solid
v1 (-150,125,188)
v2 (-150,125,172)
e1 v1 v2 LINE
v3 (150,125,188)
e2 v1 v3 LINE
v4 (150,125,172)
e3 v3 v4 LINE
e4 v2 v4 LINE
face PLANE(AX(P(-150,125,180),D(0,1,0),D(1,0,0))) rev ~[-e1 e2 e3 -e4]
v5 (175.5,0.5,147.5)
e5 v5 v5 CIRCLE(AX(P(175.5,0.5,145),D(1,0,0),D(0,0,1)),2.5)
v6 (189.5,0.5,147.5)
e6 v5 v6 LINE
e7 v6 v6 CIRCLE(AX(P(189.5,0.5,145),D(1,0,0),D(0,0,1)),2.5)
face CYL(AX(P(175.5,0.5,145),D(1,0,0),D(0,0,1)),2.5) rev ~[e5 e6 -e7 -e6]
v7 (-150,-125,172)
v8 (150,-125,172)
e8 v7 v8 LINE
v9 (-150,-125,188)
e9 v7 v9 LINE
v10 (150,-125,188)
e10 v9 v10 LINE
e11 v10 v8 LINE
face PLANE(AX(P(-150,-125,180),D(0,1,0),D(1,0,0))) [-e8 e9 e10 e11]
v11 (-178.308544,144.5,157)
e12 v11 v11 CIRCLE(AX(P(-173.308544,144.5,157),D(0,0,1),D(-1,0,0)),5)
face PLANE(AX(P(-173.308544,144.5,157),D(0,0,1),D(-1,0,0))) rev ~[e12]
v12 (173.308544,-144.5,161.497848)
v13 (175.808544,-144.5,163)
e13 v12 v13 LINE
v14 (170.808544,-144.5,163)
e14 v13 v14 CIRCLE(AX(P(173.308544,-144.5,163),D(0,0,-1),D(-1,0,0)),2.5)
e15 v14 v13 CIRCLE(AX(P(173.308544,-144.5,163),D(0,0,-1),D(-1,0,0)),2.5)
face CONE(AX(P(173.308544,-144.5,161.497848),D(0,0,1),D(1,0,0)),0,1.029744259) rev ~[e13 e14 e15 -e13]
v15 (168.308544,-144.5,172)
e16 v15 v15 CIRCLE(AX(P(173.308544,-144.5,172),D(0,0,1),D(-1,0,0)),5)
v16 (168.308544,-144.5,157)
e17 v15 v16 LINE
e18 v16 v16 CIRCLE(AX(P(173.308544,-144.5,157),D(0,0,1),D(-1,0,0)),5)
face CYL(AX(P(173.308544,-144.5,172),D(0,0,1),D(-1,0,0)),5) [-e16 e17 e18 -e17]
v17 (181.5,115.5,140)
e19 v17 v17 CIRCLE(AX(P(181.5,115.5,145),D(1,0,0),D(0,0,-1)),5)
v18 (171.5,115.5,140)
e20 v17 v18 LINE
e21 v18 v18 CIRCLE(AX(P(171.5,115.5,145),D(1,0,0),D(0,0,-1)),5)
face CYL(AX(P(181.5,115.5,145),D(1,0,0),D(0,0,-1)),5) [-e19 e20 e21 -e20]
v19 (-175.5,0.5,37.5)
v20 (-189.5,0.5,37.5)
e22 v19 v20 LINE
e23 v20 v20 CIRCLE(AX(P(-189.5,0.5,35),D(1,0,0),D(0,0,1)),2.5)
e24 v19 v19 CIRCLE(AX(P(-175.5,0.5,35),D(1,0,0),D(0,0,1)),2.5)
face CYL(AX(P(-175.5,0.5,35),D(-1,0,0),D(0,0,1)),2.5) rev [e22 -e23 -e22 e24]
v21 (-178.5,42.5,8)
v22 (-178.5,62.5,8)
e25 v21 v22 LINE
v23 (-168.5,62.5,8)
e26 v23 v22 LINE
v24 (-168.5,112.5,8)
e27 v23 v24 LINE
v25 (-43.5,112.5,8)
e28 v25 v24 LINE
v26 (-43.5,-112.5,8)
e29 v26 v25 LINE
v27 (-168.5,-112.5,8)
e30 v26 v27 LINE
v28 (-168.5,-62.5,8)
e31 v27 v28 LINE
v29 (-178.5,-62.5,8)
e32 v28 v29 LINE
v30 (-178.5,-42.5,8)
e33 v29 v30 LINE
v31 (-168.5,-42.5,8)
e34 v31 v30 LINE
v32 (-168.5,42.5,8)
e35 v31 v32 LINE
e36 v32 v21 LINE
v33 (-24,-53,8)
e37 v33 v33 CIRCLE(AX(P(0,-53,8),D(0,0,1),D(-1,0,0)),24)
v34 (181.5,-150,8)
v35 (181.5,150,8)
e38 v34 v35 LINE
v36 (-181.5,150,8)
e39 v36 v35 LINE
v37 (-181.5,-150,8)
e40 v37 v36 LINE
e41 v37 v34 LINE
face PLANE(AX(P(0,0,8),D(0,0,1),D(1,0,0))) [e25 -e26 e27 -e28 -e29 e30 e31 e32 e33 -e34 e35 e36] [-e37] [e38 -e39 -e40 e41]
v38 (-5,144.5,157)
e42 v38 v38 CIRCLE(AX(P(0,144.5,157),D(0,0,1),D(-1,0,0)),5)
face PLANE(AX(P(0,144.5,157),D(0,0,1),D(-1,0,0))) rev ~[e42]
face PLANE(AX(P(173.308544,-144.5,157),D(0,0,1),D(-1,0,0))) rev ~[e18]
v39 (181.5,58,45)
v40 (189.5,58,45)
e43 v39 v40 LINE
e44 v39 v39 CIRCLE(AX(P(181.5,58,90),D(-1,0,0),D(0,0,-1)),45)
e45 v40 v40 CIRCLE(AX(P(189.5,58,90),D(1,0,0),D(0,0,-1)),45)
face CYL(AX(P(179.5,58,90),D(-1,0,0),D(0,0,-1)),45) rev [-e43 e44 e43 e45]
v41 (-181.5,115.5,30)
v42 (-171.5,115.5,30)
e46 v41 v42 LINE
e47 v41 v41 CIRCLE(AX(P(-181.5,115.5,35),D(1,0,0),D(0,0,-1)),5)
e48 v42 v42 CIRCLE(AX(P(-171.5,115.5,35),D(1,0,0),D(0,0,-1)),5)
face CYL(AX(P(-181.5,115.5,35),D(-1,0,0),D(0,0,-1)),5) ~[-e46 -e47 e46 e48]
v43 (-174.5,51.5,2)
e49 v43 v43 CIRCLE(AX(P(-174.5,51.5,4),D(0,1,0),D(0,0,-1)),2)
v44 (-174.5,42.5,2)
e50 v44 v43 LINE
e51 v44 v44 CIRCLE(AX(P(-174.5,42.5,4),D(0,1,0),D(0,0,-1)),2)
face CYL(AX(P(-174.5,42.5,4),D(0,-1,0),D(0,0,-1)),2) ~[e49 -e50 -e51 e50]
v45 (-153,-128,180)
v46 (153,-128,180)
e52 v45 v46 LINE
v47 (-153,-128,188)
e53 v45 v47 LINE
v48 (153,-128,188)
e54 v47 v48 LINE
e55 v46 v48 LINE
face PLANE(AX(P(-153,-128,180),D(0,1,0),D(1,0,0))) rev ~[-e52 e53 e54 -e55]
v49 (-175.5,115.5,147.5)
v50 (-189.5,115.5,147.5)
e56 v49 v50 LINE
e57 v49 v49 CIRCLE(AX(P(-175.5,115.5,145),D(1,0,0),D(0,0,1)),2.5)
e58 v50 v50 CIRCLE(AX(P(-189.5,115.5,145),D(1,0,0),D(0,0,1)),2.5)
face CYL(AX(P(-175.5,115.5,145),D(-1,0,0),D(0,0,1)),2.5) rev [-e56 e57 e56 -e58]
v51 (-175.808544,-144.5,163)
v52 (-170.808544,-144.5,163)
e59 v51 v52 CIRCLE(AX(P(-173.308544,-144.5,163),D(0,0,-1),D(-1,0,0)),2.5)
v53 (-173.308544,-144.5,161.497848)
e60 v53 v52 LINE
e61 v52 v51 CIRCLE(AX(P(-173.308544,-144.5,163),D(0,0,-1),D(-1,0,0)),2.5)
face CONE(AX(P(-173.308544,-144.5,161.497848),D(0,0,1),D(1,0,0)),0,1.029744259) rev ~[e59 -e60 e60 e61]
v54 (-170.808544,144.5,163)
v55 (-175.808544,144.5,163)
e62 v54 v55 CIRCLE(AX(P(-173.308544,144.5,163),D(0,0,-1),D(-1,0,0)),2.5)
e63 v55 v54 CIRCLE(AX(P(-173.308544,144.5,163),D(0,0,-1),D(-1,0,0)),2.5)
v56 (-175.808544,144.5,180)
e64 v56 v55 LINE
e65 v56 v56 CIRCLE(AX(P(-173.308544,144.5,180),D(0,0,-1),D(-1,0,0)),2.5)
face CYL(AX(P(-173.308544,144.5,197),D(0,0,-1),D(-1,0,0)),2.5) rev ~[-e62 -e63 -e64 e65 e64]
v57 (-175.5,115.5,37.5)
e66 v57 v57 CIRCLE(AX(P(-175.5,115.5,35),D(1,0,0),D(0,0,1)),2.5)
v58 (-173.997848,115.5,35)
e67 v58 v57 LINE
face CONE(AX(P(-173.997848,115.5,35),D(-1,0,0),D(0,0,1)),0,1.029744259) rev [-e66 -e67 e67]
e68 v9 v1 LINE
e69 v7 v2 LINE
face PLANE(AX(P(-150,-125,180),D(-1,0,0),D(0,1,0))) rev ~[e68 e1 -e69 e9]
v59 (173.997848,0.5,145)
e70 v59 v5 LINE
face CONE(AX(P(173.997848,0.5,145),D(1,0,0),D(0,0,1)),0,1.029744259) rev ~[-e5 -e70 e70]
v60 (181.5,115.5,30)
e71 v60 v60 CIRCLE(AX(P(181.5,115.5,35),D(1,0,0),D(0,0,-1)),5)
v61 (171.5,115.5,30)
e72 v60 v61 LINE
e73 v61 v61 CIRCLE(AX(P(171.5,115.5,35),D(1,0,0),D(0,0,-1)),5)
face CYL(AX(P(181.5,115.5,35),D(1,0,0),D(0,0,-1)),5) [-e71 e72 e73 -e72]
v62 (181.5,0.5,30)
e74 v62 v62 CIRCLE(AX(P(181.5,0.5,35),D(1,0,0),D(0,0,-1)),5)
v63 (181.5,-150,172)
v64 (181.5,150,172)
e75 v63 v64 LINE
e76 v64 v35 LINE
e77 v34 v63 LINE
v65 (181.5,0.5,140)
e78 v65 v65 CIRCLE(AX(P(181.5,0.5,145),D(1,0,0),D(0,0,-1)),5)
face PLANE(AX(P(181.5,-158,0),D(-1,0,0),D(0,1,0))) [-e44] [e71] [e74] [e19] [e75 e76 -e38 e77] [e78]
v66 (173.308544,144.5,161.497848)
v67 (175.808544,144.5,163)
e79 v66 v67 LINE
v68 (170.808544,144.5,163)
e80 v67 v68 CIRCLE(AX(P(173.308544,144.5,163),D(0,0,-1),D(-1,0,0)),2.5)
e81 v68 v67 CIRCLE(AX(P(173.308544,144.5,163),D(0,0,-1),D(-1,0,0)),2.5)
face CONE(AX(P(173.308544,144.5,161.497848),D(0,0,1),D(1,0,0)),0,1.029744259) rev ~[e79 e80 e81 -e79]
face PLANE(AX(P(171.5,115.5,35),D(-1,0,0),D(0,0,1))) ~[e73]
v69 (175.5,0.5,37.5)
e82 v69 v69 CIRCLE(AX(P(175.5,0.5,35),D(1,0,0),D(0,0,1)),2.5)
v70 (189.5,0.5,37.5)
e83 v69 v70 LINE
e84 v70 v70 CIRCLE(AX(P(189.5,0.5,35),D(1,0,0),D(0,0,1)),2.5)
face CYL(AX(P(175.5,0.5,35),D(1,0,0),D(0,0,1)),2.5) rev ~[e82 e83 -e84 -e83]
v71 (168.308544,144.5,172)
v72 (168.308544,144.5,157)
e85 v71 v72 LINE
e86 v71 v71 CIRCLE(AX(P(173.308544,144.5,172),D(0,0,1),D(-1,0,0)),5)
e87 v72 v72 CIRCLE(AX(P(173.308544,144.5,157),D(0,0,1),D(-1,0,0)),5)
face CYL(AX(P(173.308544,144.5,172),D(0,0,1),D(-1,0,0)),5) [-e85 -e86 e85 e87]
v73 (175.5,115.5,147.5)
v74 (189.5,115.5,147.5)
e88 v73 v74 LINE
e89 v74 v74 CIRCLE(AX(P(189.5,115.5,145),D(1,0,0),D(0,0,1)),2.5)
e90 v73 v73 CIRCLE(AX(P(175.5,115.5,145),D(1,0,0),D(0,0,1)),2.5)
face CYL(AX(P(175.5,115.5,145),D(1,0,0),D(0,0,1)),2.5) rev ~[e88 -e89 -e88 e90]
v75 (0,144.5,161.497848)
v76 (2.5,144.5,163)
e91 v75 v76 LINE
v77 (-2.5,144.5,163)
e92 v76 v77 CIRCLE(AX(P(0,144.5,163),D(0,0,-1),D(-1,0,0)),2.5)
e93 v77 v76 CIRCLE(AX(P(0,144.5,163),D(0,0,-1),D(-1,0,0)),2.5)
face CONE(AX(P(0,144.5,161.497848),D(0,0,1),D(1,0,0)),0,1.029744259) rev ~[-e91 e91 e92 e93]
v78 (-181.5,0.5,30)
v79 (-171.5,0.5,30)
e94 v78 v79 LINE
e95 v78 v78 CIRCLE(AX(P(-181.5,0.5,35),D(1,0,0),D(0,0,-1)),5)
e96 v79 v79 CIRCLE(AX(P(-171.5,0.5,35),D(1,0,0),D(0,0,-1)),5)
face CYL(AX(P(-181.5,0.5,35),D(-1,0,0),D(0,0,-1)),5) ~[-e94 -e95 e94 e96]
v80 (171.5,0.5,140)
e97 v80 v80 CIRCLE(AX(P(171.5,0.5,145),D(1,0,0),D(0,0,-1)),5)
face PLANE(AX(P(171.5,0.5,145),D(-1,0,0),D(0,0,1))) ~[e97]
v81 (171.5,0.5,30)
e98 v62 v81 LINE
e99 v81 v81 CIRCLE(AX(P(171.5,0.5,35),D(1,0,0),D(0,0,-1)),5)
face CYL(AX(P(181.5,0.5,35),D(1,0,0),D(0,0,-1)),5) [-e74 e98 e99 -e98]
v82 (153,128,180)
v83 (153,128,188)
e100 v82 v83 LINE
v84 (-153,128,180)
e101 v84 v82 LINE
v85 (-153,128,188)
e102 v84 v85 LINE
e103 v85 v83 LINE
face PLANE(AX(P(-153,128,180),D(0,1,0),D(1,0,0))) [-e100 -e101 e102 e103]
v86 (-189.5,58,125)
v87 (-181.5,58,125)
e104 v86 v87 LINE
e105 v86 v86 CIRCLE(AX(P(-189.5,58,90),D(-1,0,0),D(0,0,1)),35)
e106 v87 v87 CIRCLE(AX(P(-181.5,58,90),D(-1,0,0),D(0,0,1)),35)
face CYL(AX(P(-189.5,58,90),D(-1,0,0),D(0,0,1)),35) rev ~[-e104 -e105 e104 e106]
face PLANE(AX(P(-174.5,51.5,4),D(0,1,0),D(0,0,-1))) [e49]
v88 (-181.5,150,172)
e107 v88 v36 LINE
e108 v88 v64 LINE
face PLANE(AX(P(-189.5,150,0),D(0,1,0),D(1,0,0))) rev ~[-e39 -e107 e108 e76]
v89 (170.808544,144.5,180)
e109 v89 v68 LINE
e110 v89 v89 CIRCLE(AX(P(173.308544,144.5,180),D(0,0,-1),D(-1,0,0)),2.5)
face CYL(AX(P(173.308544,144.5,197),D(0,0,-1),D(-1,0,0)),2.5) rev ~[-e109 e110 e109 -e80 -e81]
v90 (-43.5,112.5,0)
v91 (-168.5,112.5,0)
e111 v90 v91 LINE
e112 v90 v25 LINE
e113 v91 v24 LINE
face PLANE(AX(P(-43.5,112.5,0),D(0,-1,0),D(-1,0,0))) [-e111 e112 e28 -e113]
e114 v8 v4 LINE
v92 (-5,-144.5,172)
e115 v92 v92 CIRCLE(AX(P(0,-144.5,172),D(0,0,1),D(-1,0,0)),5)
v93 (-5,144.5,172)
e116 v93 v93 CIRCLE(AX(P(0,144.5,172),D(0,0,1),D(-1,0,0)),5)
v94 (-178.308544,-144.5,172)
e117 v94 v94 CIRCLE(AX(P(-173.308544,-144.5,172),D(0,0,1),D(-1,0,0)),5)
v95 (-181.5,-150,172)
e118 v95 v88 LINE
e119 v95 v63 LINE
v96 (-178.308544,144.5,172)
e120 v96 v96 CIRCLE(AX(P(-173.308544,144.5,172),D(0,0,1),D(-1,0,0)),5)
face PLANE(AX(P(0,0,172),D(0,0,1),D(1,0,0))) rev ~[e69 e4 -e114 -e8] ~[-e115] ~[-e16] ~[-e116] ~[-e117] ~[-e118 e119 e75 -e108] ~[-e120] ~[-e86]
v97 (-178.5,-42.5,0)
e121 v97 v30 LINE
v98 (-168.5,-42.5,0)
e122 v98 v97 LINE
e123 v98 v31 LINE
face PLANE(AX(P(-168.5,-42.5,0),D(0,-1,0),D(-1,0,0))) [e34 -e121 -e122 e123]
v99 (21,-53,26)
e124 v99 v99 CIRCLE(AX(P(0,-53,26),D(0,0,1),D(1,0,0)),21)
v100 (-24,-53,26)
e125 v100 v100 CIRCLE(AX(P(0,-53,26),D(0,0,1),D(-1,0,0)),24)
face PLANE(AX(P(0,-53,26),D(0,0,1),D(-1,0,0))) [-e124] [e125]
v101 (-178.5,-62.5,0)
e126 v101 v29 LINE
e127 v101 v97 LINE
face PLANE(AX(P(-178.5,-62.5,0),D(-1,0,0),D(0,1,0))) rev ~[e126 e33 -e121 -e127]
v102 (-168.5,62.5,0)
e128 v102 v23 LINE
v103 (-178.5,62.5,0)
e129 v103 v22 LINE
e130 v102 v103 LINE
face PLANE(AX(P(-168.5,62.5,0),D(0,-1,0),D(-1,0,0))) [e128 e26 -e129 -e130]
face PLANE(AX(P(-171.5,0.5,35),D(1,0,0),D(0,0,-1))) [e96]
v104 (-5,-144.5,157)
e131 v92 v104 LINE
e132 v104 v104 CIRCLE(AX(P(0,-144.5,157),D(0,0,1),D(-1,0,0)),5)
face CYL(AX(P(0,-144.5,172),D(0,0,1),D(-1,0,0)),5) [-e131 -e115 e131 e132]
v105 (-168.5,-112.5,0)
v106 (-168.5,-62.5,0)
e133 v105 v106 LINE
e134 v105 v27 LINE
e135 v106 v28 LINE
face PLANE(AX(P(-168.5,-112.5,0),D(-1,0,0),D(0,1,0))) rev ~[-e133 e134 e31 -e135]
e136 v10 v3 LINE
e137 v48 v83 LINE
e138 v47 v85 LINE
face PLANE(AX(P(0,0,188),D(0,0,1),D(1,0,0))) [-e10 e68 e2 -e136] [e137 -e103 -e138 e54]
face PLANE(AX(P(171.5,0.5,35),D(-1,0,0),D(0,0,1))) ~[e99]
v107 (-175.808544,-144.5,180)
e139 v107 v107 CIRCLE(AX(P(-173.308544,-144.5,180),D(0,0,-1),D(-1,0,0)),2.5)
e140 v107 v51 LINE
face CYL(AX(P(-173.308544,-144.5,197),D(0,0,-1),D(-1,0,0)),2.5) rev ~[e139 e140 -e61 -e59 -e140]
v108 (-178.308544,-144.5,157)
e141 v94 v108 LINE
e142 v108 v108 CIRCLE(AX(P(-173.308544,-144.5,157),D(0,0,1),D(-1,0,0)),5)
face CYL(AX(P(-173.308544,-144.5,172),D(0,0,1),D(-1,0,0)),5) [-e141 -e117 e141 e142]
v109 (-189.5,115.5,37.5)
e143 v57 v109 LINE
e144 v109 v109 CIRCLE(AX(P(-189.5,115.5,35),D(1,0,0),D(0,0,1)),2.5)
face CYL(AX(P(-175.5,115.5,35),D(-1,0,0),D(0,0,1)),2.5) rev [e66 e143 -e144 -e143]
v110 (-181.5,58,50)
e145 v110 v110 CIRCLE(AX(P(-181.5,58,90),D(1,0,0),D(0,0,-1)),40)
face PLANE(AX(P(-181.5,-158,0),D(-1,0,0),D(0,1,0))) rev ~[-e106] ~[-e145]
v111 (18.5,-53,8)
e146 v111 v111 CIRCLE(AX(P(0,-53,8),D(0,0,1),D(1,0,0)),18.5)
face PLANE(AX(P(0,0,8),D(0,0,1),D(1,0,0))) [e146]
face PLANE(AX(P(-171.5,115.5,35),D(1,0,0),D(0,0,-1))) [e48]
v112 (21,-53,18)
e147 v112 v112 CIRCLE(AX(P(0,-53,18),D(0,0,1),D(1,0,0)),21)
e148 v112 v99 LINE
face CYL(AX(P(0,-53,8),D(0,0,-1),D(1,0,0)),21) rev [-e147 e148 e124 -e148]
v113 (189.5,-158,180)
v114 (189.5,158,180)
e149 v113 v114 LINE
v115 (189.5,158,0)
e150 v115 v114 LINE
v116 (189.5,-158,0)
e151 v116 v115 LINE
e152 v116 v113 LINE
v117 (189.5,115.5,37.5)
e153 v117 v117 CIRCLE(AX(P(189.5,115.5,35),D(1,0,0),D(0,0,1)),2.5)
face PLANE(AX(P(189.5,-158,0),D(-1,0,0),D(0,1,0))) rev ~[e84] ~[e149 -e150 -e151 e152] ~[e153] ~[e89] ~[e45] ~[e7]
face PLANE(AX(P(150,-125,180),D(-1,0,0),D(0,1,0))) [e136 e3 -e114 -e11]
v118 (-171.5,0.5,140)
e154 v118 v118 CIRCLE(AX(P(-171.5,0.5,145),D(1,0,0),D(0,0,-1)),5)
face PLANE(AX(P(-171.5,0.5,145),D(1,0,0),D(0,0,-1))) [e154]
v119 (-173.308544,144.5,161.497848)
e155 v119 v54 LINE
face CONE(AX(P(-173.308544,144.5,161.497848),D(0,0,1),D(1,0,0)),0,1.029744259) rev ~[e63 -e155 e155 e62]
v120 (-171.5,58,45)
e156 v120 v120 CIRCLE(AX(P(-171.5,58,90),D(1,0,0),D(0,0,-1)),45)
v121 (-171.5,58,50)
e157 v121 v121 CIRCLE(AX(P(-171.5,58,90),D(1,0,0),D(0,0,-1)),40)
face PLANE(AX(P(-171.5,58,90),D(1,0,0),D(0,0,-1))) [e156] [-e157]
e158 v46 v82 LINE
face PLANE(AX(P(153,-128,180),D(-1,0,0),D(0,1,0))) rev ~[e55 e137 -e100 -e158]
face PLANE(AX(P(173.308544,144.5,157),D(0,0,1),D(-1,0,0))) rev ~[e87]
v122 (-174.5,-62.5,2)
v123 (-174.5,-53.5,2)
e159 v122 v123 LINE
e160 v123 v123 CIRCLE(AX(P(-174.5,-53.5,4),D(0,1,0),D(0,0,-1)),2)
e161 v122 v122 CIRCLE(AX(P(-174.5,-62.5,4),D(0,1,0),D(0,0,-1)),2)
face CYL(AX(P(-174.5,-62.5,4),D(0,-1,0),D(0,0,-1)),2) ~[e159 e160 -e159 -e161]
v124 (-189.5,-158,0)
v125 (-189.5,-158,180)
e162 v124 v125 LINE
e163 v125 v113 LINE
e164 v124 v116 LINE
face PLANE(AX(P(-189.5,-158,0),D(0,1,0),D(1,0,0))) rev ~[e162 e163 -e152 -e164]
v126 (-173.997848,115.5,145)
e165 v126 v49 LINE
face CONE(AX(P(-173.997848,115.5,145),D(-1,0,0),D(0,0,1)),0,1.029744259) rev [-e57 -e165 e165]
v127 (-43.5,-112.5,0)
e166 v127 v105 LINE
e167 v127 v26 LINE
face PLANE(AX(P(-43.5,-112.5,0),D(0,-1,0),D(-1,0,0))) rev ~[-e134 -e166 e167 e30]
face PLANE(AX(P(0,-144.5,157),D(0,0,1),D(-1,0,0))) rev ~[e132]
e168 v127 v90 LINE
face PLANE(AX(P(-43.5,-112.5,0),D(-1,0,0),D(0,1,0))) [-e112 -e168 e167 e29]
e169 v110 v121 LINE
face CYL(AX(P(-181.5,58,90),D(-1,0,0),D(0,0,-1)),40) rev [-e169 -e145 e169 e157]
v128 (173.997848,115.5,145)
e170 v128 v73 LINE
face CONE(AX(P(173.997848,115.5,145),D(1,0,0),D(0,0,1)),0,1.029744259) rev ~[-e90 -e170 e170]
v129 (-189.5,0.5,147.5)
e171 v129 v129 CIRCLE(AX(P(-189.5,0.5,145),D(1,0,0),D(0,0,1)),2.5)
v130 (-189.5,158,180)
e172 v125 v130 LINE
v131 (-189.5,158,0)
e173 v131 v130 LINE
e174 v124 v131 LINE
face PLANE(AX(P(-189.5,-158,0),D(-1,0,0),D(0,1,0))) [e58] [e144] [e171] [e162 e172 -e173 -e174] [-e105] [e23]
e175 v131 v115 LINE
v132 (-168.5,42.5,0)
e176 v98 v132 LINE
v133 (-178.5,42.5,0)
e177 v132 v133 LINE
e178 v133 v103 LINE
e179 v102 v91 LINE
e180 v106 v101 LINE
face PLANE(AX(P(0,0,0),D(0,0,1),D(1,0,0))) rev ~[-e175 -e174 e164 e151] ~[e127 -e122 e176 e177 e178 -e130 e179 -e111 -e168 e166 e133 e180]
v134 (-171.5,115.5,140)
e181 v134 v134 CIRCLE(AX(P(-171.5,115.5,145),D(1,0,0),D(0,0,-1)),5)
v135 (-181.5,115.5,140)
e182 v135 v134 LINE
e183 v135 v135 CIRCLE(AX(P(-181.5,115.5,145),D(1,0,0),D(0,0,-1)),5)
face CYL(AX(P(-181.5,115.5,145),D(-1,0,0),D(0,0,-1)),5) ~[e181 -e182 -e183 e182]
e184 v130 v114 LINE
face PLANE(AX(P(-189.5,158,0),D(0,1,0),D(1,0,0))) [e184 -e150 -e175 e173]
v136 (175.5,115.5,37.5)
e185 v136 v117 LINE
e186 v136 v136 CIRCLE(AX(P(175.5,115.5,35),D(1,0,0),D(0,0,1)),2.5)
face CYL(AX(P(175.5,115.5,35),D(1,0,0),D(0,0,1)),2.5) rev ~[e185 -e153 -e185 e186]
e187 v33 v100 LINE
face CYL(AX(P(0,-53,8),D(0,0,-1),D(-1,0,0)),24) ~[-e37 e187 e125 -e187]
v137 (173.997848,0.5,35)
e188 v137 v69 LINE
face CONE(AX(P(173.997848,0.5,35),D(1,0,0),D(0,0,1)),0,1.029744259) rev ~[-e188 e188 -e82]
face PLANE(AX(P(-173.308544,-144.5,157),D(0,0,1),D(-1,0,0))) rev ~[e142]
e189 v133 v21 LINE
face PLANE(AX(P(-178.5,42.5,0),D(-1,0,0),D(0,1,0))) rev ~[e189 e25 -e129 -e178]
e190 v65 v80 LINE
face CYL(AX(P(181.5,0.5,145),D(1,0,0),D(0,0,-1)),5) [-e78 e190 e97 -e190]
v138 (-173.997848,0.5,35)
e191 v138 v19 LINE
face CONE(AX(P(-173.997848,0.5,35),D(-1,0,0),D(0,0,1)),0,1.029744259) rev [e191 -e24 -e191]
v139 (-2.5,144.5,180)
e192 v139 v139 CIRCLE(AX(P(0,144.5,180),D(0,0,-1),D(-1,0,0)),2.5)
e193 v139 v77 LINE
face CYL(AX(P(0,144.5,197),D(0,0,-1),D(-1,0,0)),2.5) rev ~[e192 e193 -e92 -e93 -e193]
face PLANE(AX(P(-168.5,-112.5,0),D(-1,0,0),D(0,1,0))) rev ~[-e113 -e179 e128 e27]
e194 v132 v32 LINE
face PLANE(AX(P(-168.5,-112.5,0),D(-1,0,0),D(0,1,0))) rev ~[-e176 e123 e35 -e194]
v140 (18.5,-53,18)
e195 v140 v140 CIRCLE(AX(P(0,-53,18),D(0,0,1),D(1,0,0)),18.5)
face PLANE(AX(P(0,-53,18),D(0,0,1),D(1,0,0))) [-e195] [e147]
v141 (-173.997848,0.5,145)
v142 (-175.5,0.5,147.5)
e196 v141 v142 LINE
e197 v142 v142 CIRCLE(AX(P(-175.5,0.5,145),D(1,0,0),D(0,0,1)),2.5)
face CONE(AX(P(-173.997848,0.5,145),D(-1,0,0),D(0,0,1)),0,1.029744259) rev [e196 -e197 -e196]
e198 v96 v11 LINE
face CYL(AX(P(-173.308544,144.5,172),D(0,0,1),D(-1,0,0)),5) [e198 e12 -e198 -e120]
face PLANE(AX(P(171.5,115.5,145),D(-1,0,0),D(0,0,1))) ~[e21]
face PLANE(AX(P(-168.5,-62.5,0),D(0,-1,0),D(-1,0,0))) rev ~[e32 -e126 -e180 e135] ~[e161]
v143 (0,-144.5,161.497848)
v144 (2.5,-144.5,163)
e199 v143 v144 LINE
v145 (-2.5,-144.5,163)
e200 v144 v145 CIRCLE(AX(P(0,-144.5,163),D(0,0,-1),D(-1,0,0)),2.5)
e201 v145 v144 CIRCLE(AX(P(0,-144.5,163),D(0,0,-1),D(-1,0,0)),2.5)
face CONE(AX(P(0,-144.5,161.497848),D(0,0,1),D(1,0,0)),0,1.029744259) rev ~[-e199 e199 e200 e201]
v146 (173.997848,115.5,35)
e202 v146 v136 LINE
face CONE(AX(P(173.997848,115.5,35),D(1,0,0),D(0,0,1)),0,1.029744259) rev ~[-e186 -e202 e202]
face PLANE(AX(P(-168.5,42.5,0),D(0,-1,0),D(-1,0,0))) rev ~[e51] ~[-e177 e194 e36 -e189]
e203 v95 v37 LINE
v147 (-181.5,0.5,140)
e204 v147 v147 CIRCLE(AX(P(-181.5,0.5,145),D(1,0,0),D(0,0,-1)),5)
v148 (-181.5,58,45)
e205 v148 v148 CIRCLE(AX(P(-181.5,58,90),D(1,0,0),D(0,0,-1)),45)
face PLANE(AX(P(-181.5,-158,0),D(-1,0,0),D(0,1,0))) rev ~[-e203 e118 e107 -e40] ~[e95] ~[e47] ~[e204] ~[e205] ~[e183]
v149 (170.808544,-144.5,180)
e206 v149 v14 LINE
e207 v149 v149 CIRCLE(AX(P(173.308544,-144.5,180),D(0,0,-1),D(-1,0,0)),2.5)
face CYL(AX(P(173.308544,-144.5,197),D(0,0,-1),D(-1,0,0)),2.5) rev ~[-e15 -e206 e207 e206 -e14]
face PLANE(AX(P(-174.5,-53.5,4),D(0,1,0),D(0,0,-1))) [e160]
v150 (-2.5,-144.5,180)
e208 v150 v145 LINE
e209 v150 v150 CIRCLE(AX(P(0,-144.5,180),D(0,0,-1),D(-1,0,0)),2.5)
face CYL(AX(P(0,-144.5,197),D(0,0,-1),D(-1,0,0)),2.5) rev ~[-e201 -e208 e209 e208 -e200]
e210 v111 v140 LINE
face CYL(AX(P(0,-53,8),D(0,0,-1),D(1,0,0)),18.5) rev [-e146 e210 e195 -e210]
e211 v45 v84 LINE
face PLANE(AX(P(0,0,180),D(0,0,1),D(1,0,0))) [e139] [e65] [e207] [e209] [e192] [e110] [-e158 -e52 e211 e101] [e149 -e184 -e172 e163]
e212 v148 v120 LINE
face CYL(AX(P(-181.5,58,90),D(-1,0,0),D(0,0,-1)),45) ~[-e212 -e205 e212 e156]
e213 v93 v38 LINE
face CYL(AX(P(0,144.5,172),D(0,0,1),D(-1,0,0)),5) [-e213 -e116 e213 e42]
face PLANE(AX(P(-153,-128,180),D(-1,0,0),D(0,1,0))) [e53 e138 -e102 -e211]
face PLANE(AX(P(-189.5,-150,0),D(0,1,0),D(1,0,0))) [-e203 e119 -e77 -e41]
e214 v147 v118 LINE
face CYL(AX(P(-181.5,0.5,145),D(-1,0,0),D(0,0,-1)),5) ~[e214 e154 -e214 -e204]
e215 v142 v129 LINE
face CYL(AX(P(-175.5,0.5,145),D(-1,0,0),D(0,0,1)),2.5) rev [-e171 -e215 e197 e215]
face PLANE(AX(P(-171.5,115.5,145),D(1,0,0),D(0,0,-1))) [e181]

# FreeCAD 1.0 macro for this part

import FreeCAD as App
import Part
import Sketcher
Q = App.Units.Quantity


def faces_at(feature, points):
    """Names of the faces that lie closest to the given points."""
    faces = feature.Shape.Faces
    near = lambda p: min(range(len(faces)), key=lambda i: faces[i].distToShape(Part.Vertex(*p))[0])
    return sorted({f"Face{near(p) + 1}" for p in points})


def add_polygon(sketch, points):
    """Adds a closed chain of lines whose ends are joined by coincident constraints."""
    first, n = sketch.GeometryCount, len(points)
    for a, b in zip(points, points[1:] + points[:1]):
        sketch.addGeometry(Part.LineSegment(App.Vector(*a, 0), App.Vector(*b, 0)), False)
    for i in range(n):
        sketch.addConstraint(Sketcher.Constraint("Coincident", first + i, 2, first + (i + 1) % n, 1))

doc = App.newDocument("Part")
body = doc.addObject("PartDesign::Body", "Body")

# Sketch on XY plane
sketch1 = body.newObject("Sketcher::SketchObject", "Sketch")
sketch1.AttachmentSupport = (doc.getObject("XY_Plane"), [""])
sketch1.MapMode = "FlatFace"
add_polygon(sketch1, [(-190, 158), (-190, -158), (190, -158), (190, 158)])  # lines 0-3
sketch1.addConstraint(Sketcher.Constraint("Vertical", 0))
sketch1.addConstraint(Sketcher.Constraint("Horizontal", 1))
sketch1.addConstraint(Sketcher.Constraint("Vertical", 2))
sketch1.addConstraint(Sketcher.Constraint("Horizontal", 3))
sketch1.addConstraint(Sketcher.Constraint("Symmetric", 0, 2, 2, 2, -1, 1))
sketch1.addConstraint(Sketcher.Constraint("DistanceX", 1, 1, 1, 2, Q("379 mm")))
sketch1.addConstraint(Sketcher.Constraint("DistanceY", 0, 2, 0, 1, Q("316 mm")))
pad1 = body.newObject("PartDesign::Pad", "Pad")
pad1.Profile = sketch1
pad1.Length = 180
doc.recompute()

thickness = body.newObject("PartDesign::Thickness", "Thickness")
thickness.Base = (pad1, faces_at(pad1, [(0, 0, 180)]))
thickness.Value = 8
thickness.Reversed = True
thickness.Join = "Intersection"

# Sketch on YZ plane
sketch2 = body.newObject("Sketcher::SketchObject", "Sketch001")
sketch2.AttachmentSupport = (doc.getObject("YZ_Plane"), [""])
sketch2.MapMode = "FlatFace"
sketch2.AttachmentOffset = App.Placement(App.Vector(0, 0, -189.5), App.Rotation())
sketch2.addGeometry(Part.Circle(App.Vector(58, 90, 0), App.Vector(0, 0, 1), 35), False)
sketch2.addConstraint(Sketcher.Constraint("Diameter", 0, Q("70 mm")))
sketch2.addConstraint(Sketcher.Constraint("DistanceX", -1, 1, 0, 3, Q("58 mm")))
sketch2.addConstraint(Sketcher.Constraint("DistanceY", -1, 1, 0, 3, Q("90 mm")))
pocket1 = body.newObject("PartDesign::Pocket", "Pocket")
pocket1.Profile = sketch2
pocket1.Length = 20
pocket1.Reversed = True

# Sketch on YZ plane
sketch3 = body.newObject("Sketcher::SketchObject", "Sketch002")
sketch3.AttachmentSupport = (doc.getObject("YZ_Plane"), [""])
sketch3.MapMode = "FlatFace"
sketch3.AttachmentOffset = App.Placement(App.Vector(0, 0, -181.5), App.Rotation())
sketch3.addGeometry(Part.Circle(App.Vector(58, 90, 0), App.Vector(0, 0, 1), 45), False)
sketch3.addGeometry(Part.Circle(App.Vector(58, 90, 0), App.Vector(0, 0, 1), 40), False)
sketch3.addConstraint(Sketcher.Constraint("Coincident", 1, 3, 0, 3))
sketch3.addConstraint(Sketcher.Constraint("Diameter", 0, Q("90 mm")))
sketch3.addConstraint(Sketcher.Constraint("Diameter", 1, Q("80 mm")))
sketch3.addConstraint(Sketcher.Constraint("DistanceX", -1, 1, 0, 3, Q("58 mm")))
sketch3.addConstraint(Sketcher.Constraint("DistanceY", -1, 1, 0, 3, Q("90 mm")))
pad2 = body.newObject("PartDesign::Pad", "Pad001")
pad2.Profile = sketch3
pad2.Length = 10

# Sketch on YZ plane
sketch4 = body.newObject("Sketcher::SketchObject", "Sketch003")
sketch4.AttachmentSupport = (doc.getObject("YZ_Plane"), [""])
sketch4.MapMode = "FlatFace"
sketch4.AttachmentOffset = App.Placement(App.Vector(0, 0, 179.5), App.Rotation())
sketch4.addGeometry(Part.Circle(App.Vector(58, 90, 0), App.Vector(0, 0, 1), 45), False)
sketch4.addConstraint(Sketcher.Constraint("Diameter", 0, Q("90 mm")))
sketch4.addConstraint(Sketcher.Constraint("DistanceX", -1, 1, 0, 3, Q("58 mm")))
sketch4.addConstraint(Sketcher.Constraint("DistanceY", -1, 1, 0, 3, Q("90 mm")))
pocket2 = body.newObject("PartDesign::Pocket", "Pocket001")
pocket2.Profile = sketch4
pocket2.Length = 10
pocket2.Reversed = True

# Sketch on XY plane
sketch5 = body.newObject("Sketcher::SketchObject", "Sketch004")
sketch5.AttachmentSupport = (doc.getObject("XY_Plane"), [""])
sketch5.MapMode = "FlatFace"
sketch5.AttachmentOffset = App.Placement(App.Vector(0, 0, 8), App.Rotation())
sketch5.addGeometry(Part.Circle(App.Vector(0, -53, 0), App.Vector(0, 0, 1), 24), False)
sketch5.addGeometry(Part.Circle(App.Vector(0, -53, 0), App.Vector(0, 0, 1), 21), False)
sketch5.addConstraint(Sketcher.Constraint("Coincident", 1, 3, 0, 3))
sketch5.addConstraint(Sketcher.Constraint("PointOnObject", 0, 3, -2))
sketch5.addConstraint(Sketcher.Constraint("Diameter", 0, Q("48 mm")))
sketch5.addConstraint(Sketcher.Constraint("Diameter", 1, Q("42 mm")))
sketch5.addConstraint(Sketcher.Constraint("DistanceY", 0, 3, -1, 1, Q("53 mm")))
pad3 = body.newObject("PartDesign::Pad", "Pad002")
pad3.Profile = sketch5
pad3.Length = 18

# Sketch on XY plane
sketch6 = body.newObject("Sketcher::SketchObject", "Sketch005")
sketch6.AttachmentSupport = (doc.getObject("XY_Plane"), [""])
sketch6.MapMode = "FlatFace"
sketch6.AttachmentOffset = App.Placement(App.Vector(0, 0, 180), App.Rotation())
add_polygon(sketch6, [(-182, 150), (-182, -150), (182, -150), (182, 150)])  # lines 0-3
add_polygon(sketch6, [(150, -125), (-150, -125), (-150, 125), (150, 125)])  # lines 4-7
sketch6.addConstraint(Sketcher.Constraint("Vertical", 0))
sketch6.addConstraint(Sketcher.Constraint("Horizontal", 1))
sketch6.addConstraint(Sketcher.Constraint("Vertical", 2))
sketch6.addConstraint(Sketcher.Constraint("Horizontal", 3))
sketch6.addConstraint(Sketcher.Constraint("Horizontal", 4))
sketch6.addConstraint(Sketcher.Constraint("Vertical", 5))
sketch6.addConstraint(Sketcher.Constraint("Horizontal", 6))
sketch6.addConstraint(Sketcher.Constraint("Vertical", 7))
sketch6.addConstraint(Sketcher.Constraint("Symmetric", 0, 2, 2, 2, -1, 1))
sketch6.addConstraint(Sketcher.Constraint("Symmetric", 4, 2, 6, 2, -1, 1))
sketch6.addConstraint(Sketcher.Constraint("Equal", 6, 0))
sketch6.addConstraint(Sketcher.Constraint("DistanceX", 1, 1, 1, 2, Q("363 mm")))
sketch6.addConstraint(Sketcher.Constraint("DistanceX", 4, 2, 4, 1, Q("300 mm")))
sketch6.addConstraint(Sketcher.Constraint("DistanceY", 5, 1, 5, 2, Q("250 mm")))
pad4 = body.newObject("PartDesign::Pad", "Pad003")
pad4.Profile = sketch6
pad4.Length = 8
pad4.Reversed = True

# Sketch on XY plane
sketch7 = body.newObject("Sketcher::SketchObject", "Sketch006")
sketch7.AttachmentSupport = (doc.getObject("XY_Plane"), [""])
sketch7.MapMode = "FlatFace"
sketch7.AttachmentOffset = App.Placement(App.Vector(0, 0, 180), App.Rotation())
add_polygon(sketch7, [(-153, 128), (-153, -128), (153, -128), (153, 128)])  # lines 0-3
add_polygon(sketch7, [(150, -125), (-150, -125), (-150, 125), (150, 125)])  # lines 4-7
sketch7.addConstraint(Sketcher.Constraint("Vertical", 0))
sketch7.addConstraint(Sketcher.Constraint("Horizontal", 1))
sketch7.addConstraint(Sketcher.Constraint("Vertical", 2))
sketch7.addConstraint(Sketcher.Constraint("Horizontal", 3))
sketch7.addConstraint(Sketcher.Constraint("Horizontal", 4))
sketch7.addConstraint(Sketcher.Constraint("Vertical", 5))
sketch7.addConstraint(Sketcher.Constraint("Horizontal", 6))
sketch7.addConstraint(Sketcher.Constraint("Vertical", 7))
sketch7.addConstraint(Sketcher.Constraint("Symmetric", 0, 2, 2, 2, -1, 1))
sketch7.addConstraint(Sketcher.Constraint("Symmetric", 4, 2, 6, 2, -1, 1))
sketch7.addConstraint(Sketcher.Constraint("DistanceX", 1, 1, 1, 2, Q("306 mm")))
sketch7.addConstraint(Sketcher.Constraint("DistanceX", 4, 2, 4, 1, Q("300 mm")))
sketch7.addConstraint(Sketcher.Constraint("DistanceY", 0, 2, 0, 1, Q("256 mm")))
sketch7.addConstraint(Sketcher.Constraint("DistanceY", 5, 1, 5, 2, Q("250 mm")))
pad5 = body.newObject("PartDesign::Pad", "Pad004")
pad5.Profile = sketch7
pad5.Length = 8

# Sketch on XY plane
sketch8 = body.newObject("Sketcher::SketchObject", "Sketch007")
sketch8.AttachmentSupport = (doc.getObject("XY_Plane"), [""])
sketch8.MapMode = "FlatFace"
sketch8.AttachmentOffset = App.Placement(App.Vector(0, 0, 8), App.Rotation())
sketch8.addGeometry(Part.Circle(App.Vector(0, -53, 0), App.Vector(0, 0, 1), 21), False)
sketch8.addGeometry(Part.Circle(App.Vector(0, -53, 0), App.Vector(0, 0, 1), 18), False)
sketch8.addConstraint(Sketcher.Constraint("Coincident", 1, 3, 0, 3))
sketch8.addConstraint(Sketcher.Constraint("PointOnObject", 0, 3, -2))
sketch8.addConstraint(Sketcher.Constraint("Diameter", 0, Q("42 mm")))
sketch8.addConstraint(Sketcher.Constraint("Diameter", 1, Q("37 mm")))
sketch8.addConstraint(Sketcher.Constraint("DistanceY", 0, 3, -1, 1, Q("53 mm")))
pad6 = body.newObject("PartDesign::Pad", "Pad005")
pad6.Profile = sketch8
pad6.Length = 10

# Sketch on YZ plane
sketch9 = body.newObject("Sketcher::SketchObject", "Sketch008")
sketch9.AttachmentSupport = (doc.getObject("YZ_Plane"), [""])
sketch9.MapMode = "FlatFace"
sketch9.AttachmentOffset = App.Placement(App.Vector(0, 0, -181.5), App.Rotation())
sketch9.addGeometry(Part.Circle(App.Vector(116, 35, 0), App.Vector(0, 0, 1), 5), False)
sketch9.addGeometry(Part.Circle(App.Vector(116, 145, 0), App.Vector(0, 0, 1), 5), False)
sketch9.addGeometry(Part.Circle(App.Vector(0, 145, 0), App.Vector(0, 0, 1), 5), False)
sketch9.addGeometry(Part.Circle(App.Vector(0, 35, 0), App.Vector(0, 0, 1), 5), False)
sketch9.addConstraint(Sketcher.Constraint("Equal", 0, 1))
sketch9.addConstraint(Sketcher.Constraint("Equal", 1, 2))
sketch9.addConstraint(Sketcher.Constraint("Equal", 2, 3))
sketch9.addConstraint(Sketcher.Constraint("Horizontal", 1, 3, 2, 3))
sketch9.addConstraint(Sketcher.Constraint("Horizontal", 0, 3, 3, 3))
sketch9.addConstraint(Sketcher.Constraint("Vertical", 0, 3, 1, 3))
sketch9.addConstraint(Sketcher.Constraint("Vertical", 2, 3, 3, 3))
sketch9.addConstraint(Sketcher.Constraint("Diameter", 0, Q("10 mm")))
sketch9.addConstraint(Sketcher.Constraint("DistanceY", -1, 1, 0, 3, Q("35 mm")))
sketch9.addConstraint(Sketcher.Constraint("DistanceY", -1, 1, 1, 3, Q("145 mm")))
sketch9.addConstraint(Sketcher.Constraint("DistanceX", 2, 3, 1, 3, Q("115 mm")))
sketch9.addConstraint(Sketcher.Constraint("DistanceX", -1, 1, 0, 3, Q("115.5 mm")))
pad7 = body.newObject("PartDesign::Pad", "Pad006")
pad7.Profile = sketch9
pad7.Length = 10

# Sketch on XZ plane
sketch10 = body.newObject("Sketcher::SketchObject", "Sketch009")
sketch10.AttachmentSupport = (doc.getObject("XZ_Plane"), [""])
sketch10.MapMode = "FlatFace"
sketch10.AttachmentOffset = App.Placement(App.Vector(0, 0, -115.5), App.Rotation())
add_polygon(sketch10, [(-174, 35), (-189.5, 35), (-189.5, 37.5), (-175.5, 37.5)])  # lines 0-3
sketch10.addGeometry(Part.LineSegment(App.Vector(-189.5, 35, 0), App.Vector(-174, 35, 0)), True)  # axis
sketch10.addConstraint(Sketcher.Constraint("Horizontal", 0))
sketch10.addConstraint(Sketcher.Constraint("Vertical", 1))
sketch10.addConstraint(Sketcher.Constraint("Horizontal", 2))
sketch10.addConstraint(Sketcher.Constraint("Horizontal", 4))
sketch10.addConstraint(Sketcher.Constraint("Coincident", 4, 1, 0, 2))
sketch10.addConstraint(Sketcher.Constraint("Equal", 0, 4))
sketch10.addConstraint(Sketcher.Constraint("DistanceX", 2, 1, 2, 2, Q("14 mm")))
sketch10.addConstraint(Sketcher.Constraint("Angle", 3, Q("-59 deg")))
sketch10.addConstraint(Sketcher.Constraint("DistanceY", 1, 1, 1, 2, Q("2.5 mm")))
sketch10.addConstraint(Sketcher.Constraint("DistanceY", -1, 1, 0, 2, Q("35 mm")))
sketch10.addConstraint(Sketcher.Constraint("DistanceX", 0, 2, -1, 1, Q("189.5 mm")))
groove = body.newObject("PartDesign::Groove", "Groove")
groove.Profile = sketch10
groove.ReferenceAxis = (sketch10, ["Axis0"])
groove.Angle = 360
doc.recompute()

linearpattern = body.newObject("PartDesign::LinearPattern", "LinearPattern")
linearpattern.Originals = [groove]
linearpattern.Direction = (doc.getObject("Z_Axis"), [""])
linearpattern.Mode = "offset"
linearpattern.Offset = 110
linearpattern.Occurrences = 2
body.Tip = linearpattern
doc.recompute()

datumline = body.newObject("PartDesign::Line", "DatumLine")
datumline.Placement = App.Placement(App.Vector(0, 0, 0), App.Rotation(App.Vector(0, 0, 1), App.Vector(0, -0.722641857, 0.691222646)))
linearpattern2 = body.newObject("PartDesign::LinearPattern", "LinearPattern001")
linearpattern2.Originals = [groove]
linearpattern2.Direction = (datumline, [""])
linearpattern2.Mode = "offset"
linearpattern2.Offset = 159.138305
linearpattern2.Occurrences = 2
body.Tip = linearpattern2
doc.recompute()

linearpattern3 = body.newObject("PartDesign::LinearPattern", "LinearPattern002")
linearpattern3.Originals = [groove]
linearpattern3.Direction = (doc.getObject("Y_Axis"), [""])
linearpattern3.Mode = "offset"
linearpattern3.Offset = 115
linearpattern3.Occurrences = 2
linearpattern3.Reversed = True
body.Tip = linearpattern3

# Sketch on XY plane
sketch11 = body.newObject("Sketcher::SketchObject", "Sketch010")
sketch11.AttachmentSupport = (doc.getObject("XY_Plane"), [""])
sketch11.MapMode = "FlatFace"
add_polygon(sketch11, [(-44, 112), (-44, -112), (-168, -112), (-168, 112)])  # lines 0-3
sketch11.addConstraint(Sketcher.Constraint("Vertical", 0))
sketch11.addConstraint(Sketcher.Constraint("Horizontal", 1))
sketch11.addConstraint(Sketcher.Constraint("Vertical", 2))
sketch11.addConstraint(Sketcher.Constraint("Horizontal", 3))
sketch11.addConstraint(Sketcher.Constraint("DistanceX", 1, 2, 1, 1, Q("125 mm")))
sketch11.addConstraint(Sketcher.Constraint("DistanceY", 0, 2, 0, 1, Q("225 mm")))
sketch11.addConstraint(Sketcher.Constraint("DistanceX", 0, 2, -1, 1, Q("43.5 mm")))
sketch11.addConstraint(Sketcher.Constraint("DistanceY", 0, 2, -1, 1, Q("112.5 mm")))
pocket3 = body.newObject("PartDesign::Pocket", "Pocket002")
pocket3.Profile = sketch11
pocket3.Length = 8
pocket3.Reversed = True

# Sketch on XY plane
sketch12 = body.newObject("Sketcher::SketchObject", "Sketch011")
sketch12.AttachmentSupport = (doc.getObject("XY_Plane"), [""])
sketch12.MapMode = "FlatFace"
add_polygon(sketch12, [(-168, 62), (-168, 42), (-178, 42), (-178, 62)])  # lines 0-3
add_polygon(sketch12, [(-168, -42), (-168, -62), (-178, -62), (-178, -42)])  # lines 4-7
sketch12.addConstraint(Sketcher.Constraint("Vertical", 0))
sketch12.addConstraint(Sketcher.Constraint("Horizontal", 1))
sketch12.addConstraint(Sketcher.Constraint("Vertical", 2))
sketch12.addConstraint(Sketcher.Constraint("Horizontal", 3))
sketch12.addConstraint(Sketcher.Constraint("Vertical", 4))
sketch12.addConstraint(Sketcher.Constraint("Horizontal", 5))
sketch12.addConstraint(Sketcher.Constraint("Vertical", 6))
sketch12.addConstraint(Sketcher.Constraint("Horizontal", 7))
sketch12.addConstraint(Sketcher.Constraint("Symmetric", 3, 2, 4, 2, -1))
sketch12.addConstraint(Sketcher.Constraint("Symmetric", 1, 2, 6, 2, -1))
sketch12.addConstraint(Sketcher.Constraint("DistanceX", 1, 2, 1, 1, Q("10 mm")))
sketch12.addConstraint(Sketcher.Constraint("DistanceY", 0, 2, 0, 1, Q("20 mm")))
sketch12.addConstraint(Sketcher.Constraint("DistanceY", 4, 2, 0, 2, Q("105 mm")))
sketch12.addConstraint(Sketcher.Constraint("DistanceX", 0, 2, -1, 1, Q("168.5 mm")))
pocket4 = body.newObject("PartDesign::Pocket", "Pocket003")
pocket4.Profile = sketch12
pocket4.Length = 8
pocket4.Reversed = True

# Sketch on XZ plane
sketch13 = body.newObject("Sketcher::SketchObject", "Sketch012")
sketch13.AttachmentSupport = (doc.getObject("XZ_Plane"), [""])
sketch13.MapMode = "FlatFace"
sketch13.AttachmentOffset = App.Placement(App.Vector(0, 0, -42.5), App.Rotation())
sketch13.addGeometry(Part.Circle(App.Vector(-174.5, 4, 0), App.Vector(0, 0, 1), 2), False)
sketch13.addConstraint(Sketcher.Constraint("Diameter", 0, Q("4 mm")))
sketch13.addConstraint(Sketcher.Constraint("DistanceY", -1, 1, 0, 3, Q("4 mm")))
sketch13.addConstraint(Sketcher.Constraint("DistanceX", 0, 3, -1, 1, Q("174.5 mm")))
pad8 = body.newObject("PartDesign::Pad", "Pad007")
pad8.Profile = sketch13
pad8.Length = 9
pad8.Reversed = True

# Sketch on XZ plane
sketch14 = body.newObject("Sketcher::SketchObject", "Sketch013")
sketch14.AttachmentSupport = (doc.getObject("XZ_Plane"), [""])
sketch14.MapMode = "FlatFace"
sketch14.AttachmentOffset = App.Placement(App.Vector(0, 0, 62.5), App.Rotation())
sketch14.addGeometry(Part.Circle(App.Vector(-174.5, 4, 0), App.Vector(0, 0, 1), 2), False)
sketch14.addConstraint(Sketcher.Constraint("Diameter", 0, Q("4 mm")))
sketch14.addConstraint(Sketcher.Constraint("DistanceY", -1, 1, 0, 3, Q("4 mm")))
sketch14.addConstraint(Sketcher.Constraint("DistanceX", 0, 3, -1, 1, Q("174.5 mm")))
pad9 = body.newObject("PartDesign::Pad", "Pad008")
pad9.Profile = sketch14
pad9.Length = 9
pad9.Reversed = True
doc.recompute()

mirrored = body.newObject("PartDesign::Mirrored", "Mirrored")
mirrored.Originals = [pad7]
mirrored.MirrorPlane = (doc.getObject("YZ_Plane"), [""])
body.Tip = mirrored

# Sketch on XY plane
sketch15 = body.newObject("Sketcher::SketchObject", "Sketch014")
sketch15.AttachmentSupport = (doc.getObject("XY_Plane"), [""])
sketch15.MapMode = "FlatFace"
sketch15.AttachmentOffset = App.Placement(App.Vector(0, 0, 172), App.Rotation())
sketch15.addGeometry(Part.Circle(App.Vector(0, 144, 0), App.Vector(0, 0, 1), 5), False)
sketch15.addGeometry(Part.Circle(App.Vector(0, -144, 0), App.Vector(0, 0, 1), 5), False)
sketch15.addGeometry(Part.Circle(App.Vector(173, -144, 0), App.Vector(0, 0, 1), 5), False)
sketch15.addGeometry(Part.Circle(App.Vector(173, 144, 0), App.Vector(0, 0, 1), 5), False)
sketch15.addGeometry(Part.Circle(App.Vector(-173, 144, 0), App.Vector(0, 0, 1), 5), False)
sketch15.addGeometry(Part.Circle(App.Vector(-173, -144, 0), App.Vector(0, 0, 1), 5), False)
sketch15.addConstraint(Sketcher.Constraint("Equal", 0, 1))
sketch15.addConstraint(Sketcher.Constraint("Equal", 1, 2))
sketch15.addConstraint(Sketcher.Constraint("Equal", 2, 3))
sketch15.addConstraint(Sketcher.Constraint("Equal", 3, 4))
sketch15.addConstraint(Sketcher.Constraint("Equal", 4, 5))
sketch15.addConstraint(Sketcher.Constraint("Symmetric", 0, 3, 1, 3, -1, 1))
sketch15.addConstraint(Sketcher.Constraint("Symmetric", 2, 3, 4, 3, -1, 1))
sketch15.addConstraint(Sketcher.Constraint("Symmetric", 3, 3, 5, 3, -1, 1))
sketch15.addConstraint(Sketcher.Constraint("Symmetric", 3, 3, 4, 3, -2))
sketch15.addConstraint(Sketcher.Constraint("PointOnObject", 0, 3, -2))
sketch15.addConstraint(Sketcher.Constraint("Horizontal", 1, 3, 2, 3))
sketch15.addConstraint(Sketcher.Constraint("Diameter", 0, Q("10 mm")))
sketch15.addConstraint(Sketcher.Constraint("DistanceY", 1, 3, 0, 3, Q("289 mm")))
sketch15.addConstraint(Sketcher.Constraint("DistanceX", 4, 3, 3, 3, Q("346.617089 mm")))
pad10 = body.newObject("PartDesign::Pad", "Pad009")
pad10.Profile = sketch15
pad10.Length = 15
pad10.Reversed = True

# Sketch on XY plane
sketch16 = body.newObject("Sketcher::SketchObject", "Sketch015")
sketch16.AttachmentSupport = (doc.getObject("XY_Plane"), [""])
sketch16.MapMode = "FlatFace"
sketch16.AttachmentOffset = App.Placement(App.Vector(0, 0, 180), App.Rotation())
sketch16.addGeometry(Part.Circle(App.Vector(-173.3, 144.5, 0), App.Vector(0, 0, 1), 2.5), False)
sketch16.addGeometry(Part.Circle(App.Vector(0, 144.5, 0), App.Vector(0, 0, 1), 2.5), False)
sketch16.addGeometry(Part.Circle(App.Vector(173.3, 144.5, 0), App.Vector(0, 0, 1), 2.5), False)
sketch16.addGeometry(Part.Circle(App.Vector(173.3, -144.5, 0), App.Vector(0, 0, 1), 2.5), False)
sketch16.addGeometry(Part.Circle(App.Vector(0, -144.5, 0), App.Vector(0, 0, 1), 2.5), False)
sketch16.addGeometry(Part.Circle(App.Vector(-173.3, -144.5, 0), App.Vector(0, 0, 1), 2.5), False)
sketch16.addConstraint(Sketcher.Constraint("Equal", 0, 1))
sketch16.addConstraint(Sketcher.Constraint("Equal", 1, 2))
sketch16.addConstraint(Sketcher.Constraint("Equal", 2, 3))
sketch16.addConstraint(Sketcher.Constraint("Equal", 3, 4))
sketch16.addConstraint(Sketcher.Constraint("Equal", 4, 5))
sketch16.addConstraint(Sketcher.Constraint("Symmetric", 0, 3, 3, 3, -1, 1))
sketch16.addConstraint(Sketcher.Constraint("Symmetric", 1, 3, 4, 3, -1, 1))
sketch16.addConstraint(Sketcher.Constraint("Symmetric", 2, 3, 5, 3, -1, 1))
sketch16.addConstraint(Sketcher.Constraint("Symmetric", 0, 3, 2, 3, -2))
sketch16.addConstraint(Sketcher.Constraint("PointOnObject", 1, 3, -2))
sketch16.addConstraint(Sketcher.Constraint("Horizontal", 0, 3, 1, 3))
sketch16.addConstraint(Sketcher.Constraint("Diameter", 0, Q("5 mm")))
sketch16.addConstraint(Sketcher.Constraint("DistanceY", 3, 3, 2, 3, Q("289 mm")))
sketch16.addConstraint(Sketcher.Constraint("DistanceX", 0, 3, 2, 3, Q("346.617089 mm")))
doc.recompute()
hole = body.newObject("PartDesign::Hole", "Hole")
hole.Profile = sketch16
hole.ThreadType = "None"
hole.Diameter = 5
hole.DepthType = "Dimension"
hole.Depth = 17
hole.DrillPoint = "Angled"
hole.DrillPointAngle = 118
doc.recompute()

mirrored2 = body.newObject("PartDesign::Mirrored", "Mirrored001")
mirrored2.Originals = [groove]
mirrored2.MirrorPlane = (doc.getObject("YZ_Plane"), [""])
body.Tip = mirrored2

# Sketch on XZ plane
sketch17 = body.newObject("Sketcher::SketchObject", "Sketch016")
sketch17.AttachmentSupport = (doc.getObject("XZ_Plane"), [""])
sketch17.MapMode = "FlatFace"
sketch17.AttachmentOffset = App.Placement(App.Vector(0, 0, -115.5), App.Rotation())
add_polygon(sketch17, [(189.5, 145), (174, 145), (175.5, 147.5), (189.5, 147.5)])  # lines 0-3
sketch17.addGeometry(Part.LineSegment(App.Vector(174, 145, 0), App.Vector(189.5, 145, 0)), True)  # axis
sketch17.addConstraint(Sketcher.Constraint("Horizontal", 0))
sketch17.addConstraint(Sketcher.Constraint("Horizontal", 2))
sketch17.addConstraint(Sketcher.Constraint("Vertical", 3))
sketch17.addConstraint(Sketcher.Constraint("Horizontal", 4))
sketch17.addConstraint(Sketcher.Constraint("Coincident", 4, 1, 0, 2))
sketch17.addConstraint(Sketcher.Constraint("Vertical", 2, 2, 4, 2))
sketch17.addConstraint(Sketcher.Constraint("DistanceX", 2, 1, 2, 2, Q("14 mm")))
sketch17.addConstraint(Sketcher.Constraint("Angle", 1, Q("59 deg")))
sketch17.addConstraint(Sketcher.Constraint("DistanceY", 3, 2, 3, 1, Q("2.5 mm")))
sketch17.addConstraint(Sketcher.Constraint("DistanceY", -1, 1, 0, 2, Q("145 mm")))
sketch17.addConstraint(Sketcher.Constraint("DistanceX", -1, 1, 1, 2, Q("175.5 mm")))
groove2 = body.newObject("PartDesign::Groove", "Groove001")
groove2.Profile = sketch17
groove2.ReferenceAxis = (sketch17, ["Axis0"])
groove2.Angle = 360

# Sketch on XZ plane
sketch18 = body.newObject("Sketcher::SketchObject", "Sketch017")
sketch18.AttachmentSupport = (doc.getObject("XZ_Plane"), [""])
sketch18.MapMode = "FlatFace"
sketch18.AttachmentOffset = App.Placement(App.Vector(0, 0, -0.5), App.Rotation())
add_polygon(sketch18, [(189.5, 145), (174, 145), (175.5, 147.5), (189.5, 147.5)])  # lines 0-3
sketch18.addGeometry(Part.LineSegment(App.Vector(174, 145, 0), App.Vector(189.5, 145, 0)), True)  # axis
sketch18.addConstraint(Sketcher.Constraint("Horizontal", 0))
sketch18.addConstraint(Sketcher.Constraint("Horizontal", 2))
sketch18.addConstraint(Sketcher.Constraint("Vertical", 3))
sketch18.addConstraint(Sketcher.Constraint("Horizontal", 4))
sketch18.addConstraint(Sketcher.Constraint("Coincident", 4, 1, 0, 2))
sketch18.addConstraint(Sketcher.Constraint("Vertical", 2, 2, 4, 2))
sketch18.addConstraint(Sketcher.Constraint("DistanceX", 2, 1, 2, 2, Q("14 mm")))
sketch18.addConstraint(Sketcher.Constraint("Angle", 1, Q("59 deg")))
sketch18.addConstraint(Sketcher.Constraint("DistanceY", 3, 2, 3, 1, Q("2.5 mm")))
sketch18.addConstraint(Sketcher.Constraint("DistanceY", -1, 1, 0, 2, Q("145 mm")))
sketch18.addConstraint(Sketcher.Constraint("DistanceX", -1, 1, 1, 2, Q("175.5 mm")))
groove3 = body.newObject("PartDesign::Groove", "Groove002")
groove3.Profile = sketch18
groove3.ReferenceAxis = (sketch18, ["Axis0"])
groove3.Angle = 360

# Sketch on XZ plane
sketch19 = body.newObject("Sketcher::SketchObject", "Sketch018")
sketch19.AttachmentSupport = (doc.getObject("XZ_Plane"), [""])
sketch19.MapMode = "FlatFace"
sketch19.AttachmentOffset = App.Placement(App.Vector(0, 0, -0.5), App.Rotation())
add_polygon(sketch19, [(189.5, 35), (174, 35), (175.5, 37.5), (189.5, 37.5)])  # lines 0-3
sketch19.addGeometry(Part.LineSegment(App.Vector(174, 35, 0), App.Vector(189.5, 35, 0)), True)  # axis
sketch19.addConstraint(Sketcher.Constraint("Horizontal", 0))
sketch19.addConstraint(Sketcher.Constraint("Horizontal", 2))
sketch19.addConstraint(Sketcher.Constraint("Vertical", 3))
sketch19.addConstraint(Sketcher.Constraint("Horizontal", 4))
sketch19.addConstraint(Sketcher.Constraint("Coincident", 4, 1, 0, 2))
sketch19.addConstraint(Sketcher.Constraint("Vertical", 2, 2, 4, 2))
sketch19.addConstraint(Sketcher.Constraint("DistanceX", 2, 1, 2, 2, Q("14 mm")))
sketch19.addConstraint(Sketcher.Constraint("Angle", 1, Q("59 deg")))
sketch19.addConstraint(Sketcher.Constraint("DistanceY", 3, 2, 3, 1, Q("2.5 mm")))
sketch19.addConstraint(Sketcher.Constraint("DistanceY", -1, 1, 0, 2, Q("35 mm")))
sketch19.addConstraint(Sketcher.Constraint("DistanceX", -1, 1, 1, 2, Q("175.5 mm")))
groove4 = body.newObject("PartDesign::Groove", "Groove003")
groove4.Profile = sketch19
groove4.ReferenceAxis = (sketch19, ["Axis0"])
groove4.Angle = 360

doc.recompute()
